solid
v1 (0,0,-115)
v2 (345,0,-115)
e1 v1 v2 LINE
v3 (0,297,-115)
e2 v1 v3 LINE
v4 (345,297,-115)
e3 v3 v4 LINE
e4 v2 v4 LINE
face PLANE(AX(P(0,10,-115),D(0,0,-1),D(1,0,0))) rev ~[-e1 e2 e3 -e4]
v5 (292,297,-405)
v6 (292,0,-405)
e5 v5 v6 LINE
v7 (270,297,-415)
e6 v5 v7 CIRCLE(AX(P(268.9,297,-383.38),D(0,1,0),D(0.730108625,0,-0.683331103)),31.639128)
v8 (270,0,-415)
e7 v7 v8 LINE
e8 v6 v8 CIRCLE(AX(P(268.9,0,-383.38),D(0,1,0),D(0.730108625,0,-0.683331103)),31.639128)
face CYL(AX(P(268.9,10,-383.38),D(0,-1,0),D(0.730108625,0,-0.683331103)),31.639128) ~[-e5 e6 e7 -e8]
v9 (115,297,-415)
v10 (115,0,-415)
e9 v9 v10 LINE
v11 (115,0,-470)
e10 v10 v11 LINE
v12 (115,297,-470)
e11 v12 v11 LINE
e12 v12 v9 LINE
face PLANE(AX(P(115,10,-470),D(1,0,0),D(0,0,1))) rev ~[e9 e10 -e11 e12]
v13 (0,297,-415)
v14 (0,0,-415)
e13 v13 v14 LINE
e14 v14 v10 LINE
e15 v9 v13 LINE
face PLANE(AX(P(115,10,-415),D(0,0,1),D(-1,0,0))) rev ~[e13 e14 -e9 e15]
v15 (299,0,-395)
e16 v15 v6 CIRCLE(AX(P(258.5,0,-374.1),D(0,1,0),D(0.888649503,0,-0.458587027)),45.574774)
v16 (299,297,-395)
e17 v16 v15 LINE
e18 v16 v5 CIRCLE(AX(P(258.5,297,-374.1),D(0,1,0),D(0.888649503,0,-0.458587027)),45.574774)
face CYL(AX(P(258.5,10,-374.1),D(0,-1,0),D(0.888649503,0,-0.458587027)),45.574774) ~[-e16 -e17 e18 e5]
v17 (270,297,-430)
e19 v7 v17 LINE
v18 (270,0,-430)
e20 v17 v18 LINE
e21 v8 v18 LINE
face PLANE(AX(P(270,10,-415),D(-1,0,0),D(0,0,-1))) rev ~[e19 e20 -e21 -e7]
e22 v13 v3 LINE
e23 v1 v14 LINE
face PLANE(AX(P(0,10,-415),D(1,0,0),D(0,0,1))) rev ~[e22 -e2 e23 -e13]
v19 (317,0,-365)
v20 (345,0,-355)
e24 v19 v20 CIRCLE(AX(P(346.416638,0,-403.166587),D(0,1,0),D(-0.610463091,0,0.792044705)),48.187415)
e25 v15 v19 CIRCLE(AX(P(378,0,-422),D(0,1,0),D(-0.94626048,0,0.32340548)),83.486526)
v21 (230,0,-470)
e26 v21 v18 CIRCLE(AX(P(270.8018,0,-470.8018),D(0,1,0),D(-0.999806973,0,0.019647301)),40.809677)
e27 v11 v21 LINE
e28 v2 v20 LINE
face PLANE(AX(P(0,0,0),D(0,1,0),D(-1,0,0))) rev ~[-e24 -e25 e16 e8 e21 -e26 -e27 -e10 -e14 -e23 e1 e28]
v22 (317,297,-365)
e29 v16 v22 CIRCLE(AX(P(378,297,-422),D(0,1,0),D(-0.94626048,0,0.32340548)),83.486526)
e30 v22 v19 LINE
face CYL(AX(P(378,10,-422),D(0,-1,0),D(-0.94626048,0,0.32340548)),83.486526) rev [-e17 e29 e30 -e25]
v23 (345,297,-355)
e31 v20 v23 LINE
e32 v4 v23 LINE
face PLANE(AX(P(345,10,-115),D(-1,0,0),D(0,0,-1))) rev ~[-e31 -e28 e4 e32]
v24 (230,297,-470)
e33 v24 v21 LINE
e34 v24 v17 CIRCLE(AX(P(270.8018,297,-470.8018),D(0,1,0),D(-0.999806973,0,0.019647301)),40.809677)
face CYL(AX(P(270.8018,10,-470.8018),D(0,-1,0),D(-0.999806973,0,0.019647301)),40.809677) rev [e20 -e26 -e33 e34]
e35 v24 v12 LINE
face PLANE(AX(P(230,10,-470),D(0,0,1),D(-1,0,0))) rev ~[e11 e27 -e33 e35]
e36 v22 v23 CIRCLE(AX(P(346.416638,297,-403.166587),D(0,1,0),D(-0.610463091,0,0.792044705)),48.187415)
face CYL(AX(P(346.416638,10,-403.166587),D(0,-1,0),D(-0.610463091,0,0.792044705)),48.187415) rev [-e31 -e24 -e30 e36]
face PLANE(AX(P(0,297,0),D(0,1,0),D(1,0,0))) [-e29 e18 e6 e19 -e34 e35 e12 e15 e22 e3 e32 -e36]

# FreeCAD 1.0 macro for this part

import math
import FreeCAD as App
import Part
import Sketcher
from FreeCAD import Vector


def add_polygon(sketch, points):
    """Adds a closed chain of lines whose ends are joined by coincident constraints."""
    first, n = sketch.GeometryCount, len(points)
    for a, b in zip(points, points[1:] + points[:1]):
        sketch.addGeometry(Part.LineSegment(App.Vector(*a, 0), App.Vector(*b, 0)), False)
    for i in range(n):
        sketch.addConstraint(Sketcher.Constraint("Coincident", first + i, 2, first + (i + 1) % n, 1))

doc = App.newDocument("Part")
body = doc.addObject("PartDesign::Body", "Body")

# Sketch on XZ plane
sketch1 = body.newObject("Sketcher::SketchObject", "Sketch")
sketch1.AttachmentSupport = (doc.getObject("XZ_Plane"), [""])
sketch1.MapMode = "FlatFace"
sketch1.addGeometry(Part.LineSegment(Vector(0, -415, 0), Vector(0, 0, 0)), False)
sketch1.addGeometry(Part.LineSegment(Vector(0, 0, 0), Vector(345, 0, 0)), False)
sketch1.addGeometry(Part.LineSegment(Vector(345, 0, 0), Vector(345, -355, 0)), False)
sketch1.addGeometry(Part.ArcOfCircle(Part.Circle(Vector(346.4167, -403.1667, 0), Vector(0, 0, 1), 48.187542), math.radians(91.684723), math.radians(127.622971)), False)
sketch1.addGeometry(Part.ArcOfCircle(Part.Circle(Vector(378, -422, 0), Vector(0, 0, 1), 83.486526), math.radians(136.941486), math.radians(161.131001)), False)
sketch1.addGeometry(Part.ArcOfCircle(Part.Circle(Vector(258.5, -374.1, 0), Vector(0, 0, 1), 45.574774), math.radians(-42.688072), math.radians(-27.295968)), False)
sketch1.addGeometry(Part.ArcOfCircle(Part.Circle(Vector(268.9, -383.38, 0), Vector(0, 0, 1), 31.639128), math.radians(-88.007592), math.radians(-43.104499)), False)
sketch1.addGeometry(Part.LineSegment(Vector(270, -415, 0), Vector(270, -430, 0)), False)
sketch1.addGeometry(Part.ArcOfCircle(Part.Circle(Vector(270.8018, -470.8018, 0), Vector(0, 0, 1), 40.809677), math.radians(91.12578), math.radians(178.87422)), False)
sketch1.addGeometry(Part.LineSegment(Vector(230, -470, 0), Vector(115, -470, 0)), False)
sketch1.addGeometry(Part.LineSegment(Vector(115, -470, 0), Vector(115, -415, 0)), False)
sketch1.addGeometry(Part.LineSegment(Vector(115, -415, 0), Vector(0, -415, 0)), False)
sketch1.addConstraint(Sketcher.Constraint("Coincident", 0, 2, 1, 1))
sketch1.addConstraint(Sketcher.Constraint("Coincident", 1, 2, 2, 1))
sketch1.addConstraint(Sketcher.Constraint("Coincident", 2, 2, 3, 1))
sketch1.addConstraint(Sketcher.Constraint("Coincident", 3, 2, 4, 1))
sketch1.addConstraint(Sketcher.Constraint("Coincident", 4, 2, 5, 2))
sketch1.addConstraint(Sketcher.Constraint("Coincident", 5, 1, 6, 2))
sketch1.addConstraint(Sketcher.Constraint("Coincident", 6, 1, 7, 1))
sketch1.addConstraint(Sketcher.Constraint("Coincident", 7, 2, 8, 1))
sketch1.addConstraint(Sketcher.Constraint("Coincident", 8, 2, 9, 1))
sketch1.addConstraint(Sketcher.Constraint("Coincident", 9, 2, 10, 1))
sketch1.addConstraint(Sketcher.Constraint("Coincident", 10, 2, 11, 1))
sketch1.addConstraint(Sketcher.Constraint("Coincident", 11, 2, 0, 1))
sketch1.addConstraint(Sketcher.Constraint("Vertical", 0))
sketch1.addConstraint(Sketcher.Constraint("Horizontal", 1))
sketch1.addConstraint(Sketcher.Constraint("Vertical", 2))
sketch1.addConstraint(Sketcher.Constraint("Vertical", 7))
sketch1.addConstraint(Sketcher.Constraint("Horizontal", 9))
sketch1.addConstraint(Sketcher.Constraint("Vertical", 10))
sketch1.addConstraint(Sketcher.Constraint("Horizontal", 11))
sketch1.addConstraint(Sketcher.Constraint("Coincident", 0, 2, -1, 1))
sketch1.addConstraint(Sketcher.Constraint("Horizontal", 6, 1, 10, 2))
sketch1.addConstraint(Sketcher.Constraint("Equal", 9, 11))
sketch1.addConstraint(Sketcher.Constraint("DistanceX", 1, 1, 1, 2, 345.0))
sketch1.addConstraint(Sketcher.Constraint("DistanceX", 9, 2, 9, 1, 115.0))
sketch1.addConstraint(Sketcher.Constraint("DistanceY", 0, 1, 0, 2, 415.0))
sketch1.addConstraint(Sketcher.Constraint("DistanceY", 2, 2, 2, 1, 355.0))
sketch1.addConstraint(Sketcher.Constraint("DistanceY", 7, 2, 7, 1, 15.0))
sketch1.addConstraint(Sketcher.Constraint("DistanceY", 10, 1, 10, 2, 55.0))
sketch1.addConstraint(Sketcher.Constraint("DistanceX", 1, 2, 4, 3, 33.0))
sketch1.addConstraint(Sketcher.Constraint("DistanceX", 3, 2, 2, 2, 28.0))
sketch1.addConstraint(Sketcher.Constraint("DistanceX", 4, 2, 2, 2, 46.0))
sketch1.addConstraint(Sketcher.Constraint("DistanceY", 4, 2, 2, 2, 40.0))
sketch1.addConstraint(Sketcher.Constraint("DistanceY", 5, 1, 3, 2, 40.0))
sketch1.addConstraint(Sketcher.Constraint("DistanceX", 8, 2, 7, 2, 40.0))
sketch1.addConstraint(Sketcher.Constraint("DistanceY", 4, 3, -1, 1, 422.0))
sketch1.addConstraint(Sketcher.Constraint("DistanceX", -1, 1, 5, 1, 292.0))
sketch1.addConstraint(Sketcher.Constraint("DistanceX", -1, 1, 5, 3, 258.5))
sketch1.addConstraint(Sketcher.Constraint("DistanceX", -1, 1, 6, 3, 268.9))
sketch1.addConstraint(Sketcher.Constraint("Radius", 3, 48.1875))
sketch1.addConstraint(Sketcher.Constraint("Radius", 8, 40.8097))
pad1 = body.newObject("PartDesign::Pad", "Pad")
pad1.Profile = sketch1
pad1.Length = 10
pad1.Reversed = True

# Sketch on XY plane
sketch2 = body.newObject("Sketcher::SketchObject", "Sketch001")
sketch2.AttachmentSupport = (doc.getObject("XY_Plane"), [""])
sketch2.MapMode = "FlatFace"
add_polygon(sketch2, [(0, 10), (0, 0), (345, 0), (345, 10)])  # lines 0-3
sketch2.addConstraint(Sketcher.Constraint("Vertical", 0))
sketch2.addConstraint(Sketcher.Constraint("Horizontal", 1))
sketch2.addConstraint(Sketcher.Constraint("Vertical", 2))
sketch2.addConstraint(Sketcher.Constraint("Horizontal", 3))
sketch2.addConstraint(Sketcher.Constraint("Coincident", 0, 2, -1, 1))
sketch2.addConstraint(Sketcher.Constraint("DistanceX", 1, 1, 1, 2, 345.0))
sketch2.addConstraint(Sketcher.Constraint("DistanceY", 0, 2, 0, 1, 10.0))
pocket1 = body.newObject("PartDesign::Pocket", "Pocket")
pocket1.Profile = sketch2
pocket1.Length = 115

# Sketch on XZ plane
sketch3 = body.newObject("Sketcher::SketchObject", "Sketch002")
sketch3.AttachmentSupport = (doc.getObject("XZ_Plane"), [""])
sketch3.MapMode = "FlatFace"
sketch3.AttachmentOffset = App.Placement(Vector(0, 0, -10), App.Rotation())
sketch3.addGeometry(Part.LineSegment(Vector(0, -415, 0), Vector(0, -115, 0)), False)
sketch3.addGeometry(Part.LineSegment(Vector(0, -115, 0), Vector(345, -115, 0)), False)
sketch3.addGeometry(Part.LineSegment(Vector(345, -115, 0), Vector(345, -355, 0)), False)
sketch3.addGeometry(Part.ArcOfCircle(Part.Circle(Vector(346.4167, -403.1667, 0), Vector(0, 0, 1), 48.187542), math.radians(91.684723), math.radians(127.622971)), False)
sketch3.addGeometry(Part.ArcOfCircle(Part.Circle(Vector(378, -422, 0), Vector(0, 0, 1), 83.486526), math.radians(136.941486), math.radians(161.131001)), False)
sketch3.addGeometry(Part.ArcOfCircle(Part.Circle(Vector(258.5, -374.1, 0), Vector(0, 0, 1), 45.574774), math.radians(-42.688072), math.radians(-27.295968)), False)
sketch3.addGeometry(Part.ArcOfCircle(Part.Circle(Vector(268.9, -383.38, 0), Vector(0, 0, 1), 31.639128), math.radians(-88.007592), math.radians(-43.104499)), False)
sketch3.addGeometry(Part.LineSegment(Vector(270, -415, 0), Vector(270, -430, 0)), False)
sketch3.addGeometry(Part.ArcOfCircle(Part.Circle(Vector(270.8018, -470.8018, 0), Vector(0, 0, 1), 40.809677), math.radians(91.12578), math.radians(178.87422)), False)
sketch3.addGeometry(Part.LineSegment(Vector(230, -470, 0), Vector(115, -470, 0)), False)
sketch3.addGeometry(Part.LineSegment(Vector(115, -470, 0), Vector(115, -415, 0)), False)
sketch3.addGeometry(Part.LineSegment(Vector(115, -415, 0), Vector(0, -415, 0)), False)
sketch3.addConstraint(Sketcher.Constraint("Coincident", 0, 2, 1, 1))
sketch3.addConstraint(Sketcher.Constraint("Coincident", 1, 2, 2, 1))
sketch3.addConstraint(Sketcher.Constraint("Coincident", 2, 2, 3, 1))
sketch3.addConstraint(Sketcher.Constraint("Coincident", 3, 2, 4, 1))
sketch3.addConstraint(Sketcher.Constraint("Coincident", 4, 2, 5, 2))
sketch3.addConstraint(Sketcher.Constraint("Coincident", 5, 1, 6, 2))
sketch3.addConstraint(Sketcher.Constraint("Coincident", 6, 1, 7, 1))
sketch3.addConstraint(Sketcher.Constraint("Coincident", 7, 2, 8, 1))
sketch3.addConstraint(Sketcher.Constraint("Coincident", 8, 2, 9, 1))
sketch3.addConstraint(Sketcher.Constraint("Coincident", 9, 2, 10, 1))
sketch3.addConstraint(Sketcher.Constraint("Coincident", 10, 2, 11, 1))
sketch3.addConstraint(Sketcher.Constraint("Coincident", 11, 2, 0, 1))
sketch3.addConstraint(Sketcher.Constraint("Vertical", 0))
sketch3.addConstraint(Sketcher.Constraint("Horizontal", 1))
sketch3.addConstraint(Sketcher.Constraint("Vertical", 2))
sketch3.addConstraint(Sketcher.Constraint("Vertical", 7))
sketch3.addConstraint(Sketcher.Constraint("Horizontal", 9))
sketch3.addConstraint(Sketcher.Constraint("Vertical", 10))
sketch3.addConstraint(Sketcher.Constraint("Horizontal", 11))
sketch3.addConstraint(Sketcher.Constraint("PointOnObject", 0, 2, -2))
sketch3.addConstraint(Sketcher.Constraint("Horizontal", 6, 1, 10, 2))
sketch3.addConstraint(Sketcher.Constraint("Equal", 9, 11))
sketch3.addConstraint(Sketcher.Constraint("DistanceX", 1, 1, 1, 2, 345.0))
sketch3.addConstraint(Sketcher.Constraint("DistanceX", 9, 2, 9, 1, 115.0))
sketch3.addConstraint(Sketcher.Constraint("DistanceY", 0, 1, 0, 2, 300.0))
sketch3.addConstraint(Sketcher.Constraint("DistanceY", 2, 2, 2, 1, 240.0))
sketch3.addConstraint(Sketcher.Constraint("DistanceY", 7, 2, 7, 1, 15.0))
sketch3.addConstraint(Sketcher.Constraint("DistanceY", 10, 1, 10, 2, 55.0))
sketch3.addConstraint(Sketcher.Constraint("DistanceX", -1, 1, 4, 3, 378.0))
sketch3.addConstraint(Sketcher.Constraint("DistanceY", 4, 3, -1, 1, 422.0))
sketch3.addConstraint(Sketcher.Constraint("DistanceY", 0, 2, -1, 1, 115.0))
sketch3.addConstraint(Sketcher.Constraint("DistanceX", -1, 1, 3, 2, 317.0))
sketch3.addConstraint(Sketcher.Constraint("DistanceY", 3, 2, -1, 1, 365.0))
sketch3.addConstraint(Sketcher.Constraint("DistanceX", -1, 1, 4, 2, 299.0))
sketch3.addConstraint(Sketcher.Constraint("DistanceX", -1, 1, 5, 1, 292.0))
sketch3.addConstraint(Sketcher.Constraint("DistanceY", 5, 1, -1, 1, 405.0))
sketch3.addConstraint(Sketcher.Constraint("DistanceX", -1, 1, 6, 1, 270.0))
sketch3.addConstraint(Sketcher.Constraint("DistanceX", -1, 1, 5, 3, 258.5))
sketch3.addConstraint(Sketcher.Constraint("DistanceX", -1, 1, 6, 3, 268.9))
sketch3.addConstraint(Sketcher.Constraint("Radius", 3, 48.1875))
sketch3.addConstraint(Sketcher.Constraint("Radius", 8, 40.8097))
pad2 = body.newObject("PartDesign::Pad", "Pad001")
pad2.Profile = sketch3
pad2.Length = 287
pad2.Reversed = True

doc.recompute()
